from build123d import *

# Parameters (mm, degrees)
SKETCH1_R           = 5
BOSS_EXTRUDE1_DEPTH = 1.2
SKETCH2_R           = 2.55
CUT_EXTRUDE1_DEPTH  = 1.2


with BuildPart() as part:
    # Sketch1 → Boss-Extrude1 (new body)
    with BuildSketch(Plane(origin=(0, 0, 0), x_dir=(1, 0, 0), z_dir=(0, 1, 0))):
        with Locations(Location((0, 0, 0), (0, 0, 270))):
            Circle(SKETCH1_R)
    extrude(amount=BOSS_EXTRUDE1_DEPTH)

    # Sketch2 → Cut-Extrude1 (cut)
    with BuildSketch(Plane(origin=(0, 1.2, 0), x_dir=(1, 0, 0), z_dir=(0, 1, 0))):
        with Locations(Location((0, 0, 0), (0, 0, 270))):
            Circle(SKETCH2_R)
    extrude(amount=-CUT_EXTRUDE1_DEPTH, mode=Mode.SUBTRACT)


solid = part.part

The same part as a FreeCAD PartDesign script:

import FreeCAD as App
import Part
import Sketcher

doc = App.newDocument("Part")
body = doc.addObject("PartDesign::Body", "Body")

# Sketch on XZ plane
sketch1 = doc.addObject("Sketcher::SketchObject", "Sketch")
body.addObject(sketch1)
sketch1.AttachmentSupport = (doc.XZ_Plane, [""])
sketch1.MapMode = "FlatFace"
sketch1.addGeometry(Part.Circle(App.Vector(0, 0, 0), App.Vector(0, 0, 1), 5), False)
sketch1.addConstraint([
    Sketcher.Constraint("Coincident", 0, 3, -1, 1),
    Sketcher.Constraint("Diameter", 0, 10.0),
])
pad1 = doc.addObject("PartDesign::Pad", "Pad")
body.addObject(pad1)
pad1.Profile = sketch1
pad1.Length = 1.2
pad1.Reversed = True

# Sketch on XZ plane
sketch2 = doc.addObject("Sketcher::SketchObject", "Sketch001")
body.addObject(sketch2)
sketch2.AttachmentSupport = (doc.XZ_Plane, [""])
sketch2.MapMode = "FlatFace"
sketch2.AttachmentOffset = App.Placement(App.Vector(0, 0, -1.2), App.Rotation())
sketch2.addGeometry(Part.Circle(App.Vector(0, 0, 0), App.Vector(0, 0, 1), 2.55), False)
sketch2.addConstraint([
    Sketcher.Constraint("Coincident", 0, 3, -1, 1),
    Sketcher.Constraint("Diameter", 0, 5.1),
])
pocket1 = doc.addObject("PartDesign::Pocket", "Pocket")
body.addObject(pocket1)
pocket1.Profile = sketch2
pocket1.Length = 1.2
pocket1.Reversed = True

doc.recompute()
